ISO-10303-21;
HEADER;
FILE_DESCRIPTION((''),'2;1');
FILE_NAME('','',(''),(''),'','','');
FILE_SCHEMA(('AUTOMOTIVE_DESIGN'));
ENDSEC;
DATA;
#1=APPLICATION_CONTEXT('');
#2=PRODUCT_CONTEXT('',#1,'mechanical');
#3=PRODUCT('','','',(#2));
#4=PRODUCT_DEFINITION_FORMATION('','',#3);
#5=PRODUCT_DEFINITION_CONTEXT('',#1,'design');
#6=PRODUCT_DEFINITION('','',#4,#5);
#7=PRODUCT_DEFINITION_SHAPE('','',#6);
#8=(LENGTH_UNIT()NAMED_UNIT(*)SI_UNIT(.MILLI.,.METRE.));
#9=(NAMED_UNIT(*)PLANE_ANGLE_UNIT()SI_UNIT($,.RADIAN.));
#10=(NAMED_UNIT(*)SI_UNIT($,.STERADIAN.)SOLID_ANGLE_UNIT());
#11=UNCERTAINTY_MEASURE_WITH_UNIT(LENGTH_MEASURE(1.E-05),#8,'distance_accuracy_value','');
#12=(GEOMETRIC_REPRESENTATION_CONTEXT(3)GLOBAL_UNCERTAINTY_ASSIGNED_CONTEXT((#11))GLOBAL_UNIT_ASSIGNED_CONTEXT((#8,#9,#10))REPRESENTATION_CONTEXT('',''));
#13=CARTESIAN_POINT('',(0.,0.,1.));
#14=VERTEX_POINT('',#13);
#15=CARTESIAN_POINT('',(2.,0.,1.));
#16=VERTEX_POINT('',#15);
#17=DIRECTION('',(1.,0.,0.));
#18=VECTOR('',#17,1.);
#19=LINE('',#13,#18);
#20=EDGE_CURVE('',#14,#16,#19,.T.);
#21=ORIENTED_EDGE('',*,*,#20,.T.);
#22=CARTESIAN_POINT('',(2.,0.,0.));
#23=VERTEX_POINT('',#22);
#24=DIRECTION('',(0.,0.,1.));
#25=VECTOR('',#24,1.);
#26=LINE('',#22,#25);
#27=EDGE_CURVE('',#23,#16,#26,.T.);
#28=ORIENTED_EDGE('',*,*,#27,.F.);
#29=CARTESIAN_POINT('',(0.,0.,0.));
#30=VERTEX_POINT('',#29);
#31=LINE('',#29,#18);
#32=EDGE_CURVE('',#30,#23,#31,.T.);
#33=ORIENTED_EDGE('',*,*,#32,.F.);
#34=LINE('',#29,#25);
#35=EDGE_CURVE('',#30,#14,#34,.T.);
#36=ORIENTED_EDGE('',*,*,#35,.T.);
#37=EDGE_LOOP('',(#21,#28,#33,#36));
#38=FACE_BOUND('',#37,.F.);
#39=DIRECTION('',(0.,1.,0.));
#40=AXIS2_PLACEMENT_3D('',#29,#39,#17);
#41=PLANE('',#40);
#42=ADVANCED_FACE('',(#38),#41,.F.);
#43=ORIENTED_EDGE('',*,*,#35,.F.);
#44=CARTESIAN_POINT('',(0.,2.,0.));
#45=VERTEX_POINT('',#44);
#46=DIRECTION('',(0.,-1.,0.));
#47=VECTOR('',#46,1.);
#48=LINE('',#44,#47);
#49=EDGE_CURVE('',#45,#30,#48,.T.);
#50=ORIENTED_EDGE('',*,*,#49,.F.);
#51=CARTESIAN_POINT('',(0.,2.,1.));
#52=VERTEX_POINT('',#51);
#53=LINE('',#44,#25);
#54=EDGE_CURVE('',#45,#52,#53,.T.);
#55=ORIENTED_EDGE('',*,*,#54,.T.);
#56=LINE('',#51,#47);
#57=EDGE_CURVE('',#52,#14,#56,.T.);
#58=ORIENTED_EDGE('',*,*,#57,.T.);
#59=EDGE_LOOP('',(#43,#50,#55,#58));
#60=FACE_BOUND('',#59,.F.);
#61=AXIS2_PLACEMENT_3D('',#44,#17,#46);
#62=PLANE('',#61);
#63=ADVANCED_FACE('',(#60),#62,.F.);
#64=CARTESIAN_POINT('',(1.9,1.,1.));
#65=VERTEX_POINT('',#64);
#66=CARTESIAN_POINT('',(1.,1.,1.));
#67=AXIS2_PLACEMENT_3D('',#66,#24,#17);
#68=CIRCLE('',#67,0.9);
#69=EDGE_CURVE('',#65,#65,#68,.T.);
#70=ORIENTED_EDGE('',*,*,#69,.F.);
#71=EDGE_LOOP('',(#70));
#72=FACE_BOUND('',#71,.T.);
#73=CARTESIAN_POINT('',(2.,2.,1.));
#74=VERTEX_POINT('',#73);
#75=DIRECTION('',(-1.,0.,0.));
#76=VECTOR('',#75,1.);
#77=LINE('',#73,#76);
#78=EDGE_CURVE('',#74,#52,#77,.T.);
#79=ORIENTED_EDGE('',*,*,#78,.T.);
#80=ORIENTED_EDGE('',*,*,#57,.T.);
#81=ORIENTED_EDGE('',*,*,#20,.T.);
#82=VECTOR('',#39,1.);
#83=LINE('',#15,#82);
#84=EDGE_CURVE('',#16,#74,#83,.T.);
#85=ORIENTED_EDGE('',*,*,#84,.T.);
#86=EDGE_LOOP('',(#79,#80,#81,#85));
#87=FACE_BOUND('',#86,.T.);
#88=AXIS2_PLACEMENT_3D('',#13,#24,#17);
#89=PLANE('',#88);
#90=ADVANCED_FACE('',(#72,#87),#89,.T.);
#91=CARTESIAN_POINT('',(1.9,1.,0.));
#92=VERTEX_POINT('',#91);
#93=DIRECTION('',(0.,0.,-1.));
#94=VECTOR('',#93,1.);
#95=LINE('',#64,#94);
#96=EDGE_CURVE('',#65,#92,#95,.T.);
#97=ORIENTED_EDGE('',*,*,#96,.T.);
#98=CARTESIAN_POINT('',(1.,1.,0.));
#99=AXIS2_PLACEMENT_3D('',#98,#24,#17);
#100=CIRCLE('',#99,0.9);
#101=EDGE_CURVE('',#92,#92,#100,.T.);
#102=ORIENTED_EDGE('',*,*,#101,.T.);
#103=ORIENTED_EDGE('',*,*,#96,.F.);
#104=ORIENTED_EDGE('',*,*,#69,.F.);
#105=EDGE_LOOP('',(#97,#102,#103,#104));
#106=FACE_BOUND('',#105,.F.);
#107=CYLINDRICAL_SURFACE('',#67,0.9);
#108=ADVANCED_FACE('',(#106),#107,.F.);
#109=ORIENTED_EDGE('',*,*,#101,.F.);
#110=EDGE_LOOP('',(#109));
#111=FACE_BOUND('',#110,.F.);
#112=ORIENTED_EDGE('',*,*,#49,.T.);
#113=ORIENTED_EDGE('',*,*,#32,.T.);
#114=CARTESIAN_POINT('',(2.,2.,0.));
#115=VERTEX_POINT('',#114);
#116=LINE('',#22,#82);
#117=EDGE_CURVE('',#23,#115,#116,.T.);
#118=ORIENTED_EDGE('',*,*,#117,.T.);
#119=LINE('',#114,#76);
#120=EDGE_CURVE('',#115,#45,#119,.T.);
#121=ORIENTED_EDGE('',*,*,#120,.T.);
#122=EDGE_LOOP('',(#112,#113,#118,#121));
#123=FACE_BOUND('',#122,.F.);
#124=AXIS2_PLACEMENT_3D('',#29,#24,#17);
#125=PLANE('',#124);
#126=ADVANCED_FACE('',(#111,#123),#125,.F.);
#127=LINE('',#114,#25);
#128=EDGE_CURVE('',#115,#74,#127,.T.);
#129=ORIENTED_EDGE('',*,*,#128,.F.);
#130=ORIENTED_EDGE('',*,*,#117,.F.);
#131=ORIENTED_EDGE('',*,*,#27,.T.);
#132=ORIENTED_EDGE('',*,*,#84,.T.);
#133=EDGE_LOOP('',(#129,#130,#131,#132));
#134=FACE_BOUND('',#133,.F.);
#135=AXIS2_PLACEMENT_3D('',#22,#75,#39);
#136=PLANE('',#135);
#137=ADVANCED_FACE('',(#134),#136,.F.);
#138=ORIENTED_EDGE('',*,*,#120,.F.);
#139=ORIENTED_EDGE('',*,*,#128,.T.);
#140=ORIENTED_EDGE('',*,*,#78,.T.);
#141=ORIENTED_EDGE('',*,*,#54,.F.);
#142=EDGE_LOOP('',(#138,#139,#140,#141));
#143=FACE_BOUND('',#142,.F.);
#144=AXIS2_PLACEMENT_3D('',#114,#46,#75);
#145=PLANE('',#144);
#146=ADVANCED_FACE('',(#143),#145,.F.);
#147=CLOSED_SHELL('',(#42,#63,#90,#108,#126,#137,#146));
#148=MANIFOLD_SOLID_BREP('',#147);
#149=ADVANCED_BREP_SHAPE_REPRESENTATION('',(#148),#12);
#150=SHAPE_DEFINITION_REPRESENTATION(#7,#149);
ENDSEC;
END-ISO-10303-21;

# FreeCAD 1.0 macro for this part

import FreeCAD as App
import Part
import Sketcher
Q = App.Units.Quantity

doc = App.newDocument("Part")
body = doc.addObject("PartDesign::Body", "Body")

sketch1 = body.newObject("Sketcher::SketchObject", "Sketch")
sketch1.AttachmentSupport = (doc.getObject("XY_Plane"), [""])
sketch1.MapMode = "FlatFace"
sketch1.addGeometry([
    Part.LineSegment(App.Vector(0, 2, 0), App.Vector(0, 0, 0)),
    Part.LineSegment(App.Vector(0, 0, 0), App.Vector(2, 0, 0)),
    Part.LineSegment(App.Vector(2, 0, 0), App.Vector(2, 2, 0)),
    Part.LineSegment(App.Vector(2, 2, 0), App.Vector(0, 2, 0)),
], False)
sketch1.addConstraint([
    Sketcher.Constraint("Coincident", 0, 2, 1, 1),
    Sketcher.Constraint("Coincident", 1, 2, 2, 1),
    Sketcher.Constraint("Coincident", 2, 2, 3, 1),
    Sketcher.Constraint("Coincident", 3, 2, 0, 1),
    Sketcher.Constraint("Vertical", 0),
    Sketcher.Constraint("Horizontal", 1),
    Sketcher.Constraint("Vertical", 2),
    Sketcher.Constraint("Horizontal", 3),
    Sketcher.Constraint("Coincident", 0, 2, -1, 1),
    Sketcher.Constraint("Equal", 3, 0),
    Sketcher.Constraint("DistanceX", 1, 1, 1, 2, Q("2 mm")),
])
pad1 = body.newObject("PartDesign::Pad", "Pad")
pad1.Profile = sketch1
pad1.Length = 1

sketch2 = body.newObject("Sketcher::SketchObject", "Sketch001")
sketch2.AttachmentSupport = (doc.getObject("XY_Plane"), [""])
sketch2.MapMode = "FlatFace"
sketch2.AttachmentOffset = App.Placement(App.Vector(0, 0, 1), App.Rotation())
sketch2.addGeometry(Part.Circle(App.Vector(1, 1, 0), App.Vector(0, 0, 1), 0.9), False)
sketch2.addConstraint([
    Sketcher.Constraint("Diameter", 0, Q("1.8 mm")),
    Sketcher.Constraint("DistanceX", -1, 1, 0, 3, Q("1 mm")),
    Sketcher.Constraint("DistanceY", -1, 1, 0, 3, Q("1 mm")),
])
pocket1 = body.newObject("PartDesign::Pocket", "Pocket")
pocket1.Profile = sketch2
pocket1.Type = "ThroughAll"

doc.recompute()
